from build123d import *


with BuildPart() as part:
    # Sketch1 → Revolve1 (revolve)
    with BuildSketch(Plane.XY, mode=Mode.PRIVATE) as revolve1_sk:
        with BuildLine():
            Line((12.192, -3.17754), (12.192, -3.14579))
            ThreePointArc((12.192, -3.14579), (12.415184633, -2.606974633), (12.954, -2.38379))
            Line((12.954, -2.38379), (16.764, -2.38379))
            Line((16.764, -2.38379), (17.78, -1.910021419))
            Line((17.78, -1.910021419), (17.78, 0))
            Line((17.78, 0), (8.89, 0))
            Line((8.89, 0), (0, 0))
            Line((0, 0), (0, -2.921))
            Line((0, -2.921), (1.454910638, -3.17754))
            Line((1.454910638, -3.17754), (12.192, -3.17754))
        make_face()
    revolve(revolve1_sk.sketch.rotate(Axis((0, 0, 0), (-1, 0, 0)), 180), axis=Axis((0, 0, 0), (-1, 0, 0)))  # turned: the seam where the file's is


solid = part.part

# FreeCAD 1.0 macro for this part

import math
import FreeCAD as App
import Part
import Sketcher
Q = App.Units.Quantity

doc = App.newDocument("Part")
params = doc.addObject("Spreadsheet::Sheet", "Params")
for row, (alias, value) in enumerate([
    ("sketch1_radius", "0.03 in"),
    ("sketch1_width", "0.7 in"),
    ("sketch1_width2", "0.15 in"),
    ("sketch1_height", "0.115 in"),
    ("revolution_angle", "360 deg"),
], start=1):
    params.set(f"A{row}", alias)
    params.set(f"B{row}", "=" + value)
    params.setAlias(f"B{row}", alias)

body = doc.addObject("PartDesign::Body", "Body")

# Sketch on XY plane
sketch1 = doc.addObject("Sketcher::SketchObject", "Sketch")
body.addObject(sketch1)
sketch1.AttachmentSupport = (doc.XY_Plane, [""])
sketch1.MapMode = "FlatFace"
sketch1.addGeometry(Part.LineSegment(App.Vector(12.192, -3.178, 0), App.Vector(12.192, -3.146, 0)), False)
sketch1.addGeometry(Part.ArcOfCircle(Part.Circle(App.Vector(12.954, -3.146, 0), App.Vector(0, 0, 1), 0.762), math.radians(90), math.radians(180)), False)
sketch1.addGeometry(Part.LineSegment(App.Vector(12.954, -2.384, 0), App.Vector(16.764, -2.384, 0)), False)
sketch1.addGeometry(Part.LineSegment(App.Vector(16.764, -2.384, 0), App.Vector(17.78, -1.91, 0)), False)
sketch1.addGeometry(Part.LineSegment(App.Vector(17.78, -1.91, 0), App.Vector(17.78, 0, 0)), False)
sketch1.addGeometry(Part.LineSegment(App.Vector(17.78, 0, 0), App.Vector(0, 0, 0)), False)
sketch1.addGeometry(Part.LineSegment(App.Vector(0, 0, 0), App.Vector(0, -2.921, 0)), False)
sketch1.addGeometry(Part.LineSegment(App.Vector(0, -2.921, 0), App.Vector(1.455, -3.178, 0)), False)
sketch1.addGeometry(Part.LineSegment(App.Vector(1.455, -3.178, 0), App.Vector(12.192, -3.178, 0)), False)
sketch1.addConstraint(Sketcher.Constraint("Tangent", 0, 2, 1, 2))
sketch1.addConstraint(Sketcher.Constraint("Tangent", 1, 1, 2, 1))
sketch1.addConstraint(Sketcher.Constraint("Coincident", 2, 2, 3, 1))
sketch1.addConstraint(Sketcher.Constraint("Coincident", 3, 2, 4, 1))
sketch1.addConstraint(Sketcher.Constraint("Coincident", 4, 2, 5, 1))
sketch1.addConstraint(Sketcher.Constraint("Coincident", 5, 2, 6, 1))
sketch1.addConstraint(Sketcher.Constraint("Coincident", 6, 2, 7, 1))
sketch1.addConstraint(Sketcher.Constraint("Coincident", 7, 2, 8, 1))
sketch1.addConstraint(Sketcher.Constraint("Coincident", 8, 2, 0, 1))
sketch1.addConstraint(Sketcher.Constraint("Vertical", 0))
sketch1.addConstraint(Sketcher.Constraint("Horizontal", 2))
sketch1.addConstraint(Sketcher.Constraint("Vertical", 4))
sketch1.addConstraint(Sketcher.Constraint("Horizontal", 5))
sketch1.addConstraint(Sketcher.Constraint("Vertical", 6))
sketch1.addConstraint(Sketcher.Constraint("Horizontal", 8))
sketch1.addConstraint(Sketcher.Constraint("Coincident", 5, 2, -1, 1))
sketch1.addConstraint(Sketcher.Constraint("Radius", 1, Q("0.03 in")))
sketch1.addConstraint(Sketcher.Constraint("DistanceX", 5, 2, 5, 1, Q("0.7 in")))
sketch1.addConstraint(Sketcher.Constraint("Angle", 3, Q("25 deg")))
sketch1.addConstraint(Sketcher.Constraint("Angle", 7, Q("-10 deg")))
sketch1.addConstraint(Sketcher.Constraint("DistanceX", 2, 1, 2, 2, Q("0.15 in")))
sketch1.addConstraint(Sketcher.Constraint("DistanceY", 6, 2, 6, 1, Q("0.115 in")))
sketch1.addConstraint(Sketcher.Constraint("DistanceX", -1, 1, 1, 3, Q("0.51 in")))
sketch1.addConstraint(Sketcher.Constraint("DistanceY", 7, 2, 1, 1, Q("0.03125 in")))
sketch1.addConstraint(Sketcher.Constraint("DistanceY", 7, 2, -1, 1, Q("0.1251 in")))
sketch1.setExpression("Constraints[16]", "Params.sketch1_radius")
sketch1.setExpression("Constraints[17]", "Params.sketch1_width")
sketch1.setExpression("Constraints[20]", "Params.sketch1_width2")
sketch1.setExpression("Constraints[21]", "Params.sketch1_height")
revolution = doc.addObject("PartDesign::Revolution", "Revolution")
body.addObject(revolution)
revolution.Profile = sketch1
revolution.ReferenceAxis = (sketch1, ["H_Axis"])
revolution.setExpression("Angle", "Params.revolution_angle")

doc.recompute()
